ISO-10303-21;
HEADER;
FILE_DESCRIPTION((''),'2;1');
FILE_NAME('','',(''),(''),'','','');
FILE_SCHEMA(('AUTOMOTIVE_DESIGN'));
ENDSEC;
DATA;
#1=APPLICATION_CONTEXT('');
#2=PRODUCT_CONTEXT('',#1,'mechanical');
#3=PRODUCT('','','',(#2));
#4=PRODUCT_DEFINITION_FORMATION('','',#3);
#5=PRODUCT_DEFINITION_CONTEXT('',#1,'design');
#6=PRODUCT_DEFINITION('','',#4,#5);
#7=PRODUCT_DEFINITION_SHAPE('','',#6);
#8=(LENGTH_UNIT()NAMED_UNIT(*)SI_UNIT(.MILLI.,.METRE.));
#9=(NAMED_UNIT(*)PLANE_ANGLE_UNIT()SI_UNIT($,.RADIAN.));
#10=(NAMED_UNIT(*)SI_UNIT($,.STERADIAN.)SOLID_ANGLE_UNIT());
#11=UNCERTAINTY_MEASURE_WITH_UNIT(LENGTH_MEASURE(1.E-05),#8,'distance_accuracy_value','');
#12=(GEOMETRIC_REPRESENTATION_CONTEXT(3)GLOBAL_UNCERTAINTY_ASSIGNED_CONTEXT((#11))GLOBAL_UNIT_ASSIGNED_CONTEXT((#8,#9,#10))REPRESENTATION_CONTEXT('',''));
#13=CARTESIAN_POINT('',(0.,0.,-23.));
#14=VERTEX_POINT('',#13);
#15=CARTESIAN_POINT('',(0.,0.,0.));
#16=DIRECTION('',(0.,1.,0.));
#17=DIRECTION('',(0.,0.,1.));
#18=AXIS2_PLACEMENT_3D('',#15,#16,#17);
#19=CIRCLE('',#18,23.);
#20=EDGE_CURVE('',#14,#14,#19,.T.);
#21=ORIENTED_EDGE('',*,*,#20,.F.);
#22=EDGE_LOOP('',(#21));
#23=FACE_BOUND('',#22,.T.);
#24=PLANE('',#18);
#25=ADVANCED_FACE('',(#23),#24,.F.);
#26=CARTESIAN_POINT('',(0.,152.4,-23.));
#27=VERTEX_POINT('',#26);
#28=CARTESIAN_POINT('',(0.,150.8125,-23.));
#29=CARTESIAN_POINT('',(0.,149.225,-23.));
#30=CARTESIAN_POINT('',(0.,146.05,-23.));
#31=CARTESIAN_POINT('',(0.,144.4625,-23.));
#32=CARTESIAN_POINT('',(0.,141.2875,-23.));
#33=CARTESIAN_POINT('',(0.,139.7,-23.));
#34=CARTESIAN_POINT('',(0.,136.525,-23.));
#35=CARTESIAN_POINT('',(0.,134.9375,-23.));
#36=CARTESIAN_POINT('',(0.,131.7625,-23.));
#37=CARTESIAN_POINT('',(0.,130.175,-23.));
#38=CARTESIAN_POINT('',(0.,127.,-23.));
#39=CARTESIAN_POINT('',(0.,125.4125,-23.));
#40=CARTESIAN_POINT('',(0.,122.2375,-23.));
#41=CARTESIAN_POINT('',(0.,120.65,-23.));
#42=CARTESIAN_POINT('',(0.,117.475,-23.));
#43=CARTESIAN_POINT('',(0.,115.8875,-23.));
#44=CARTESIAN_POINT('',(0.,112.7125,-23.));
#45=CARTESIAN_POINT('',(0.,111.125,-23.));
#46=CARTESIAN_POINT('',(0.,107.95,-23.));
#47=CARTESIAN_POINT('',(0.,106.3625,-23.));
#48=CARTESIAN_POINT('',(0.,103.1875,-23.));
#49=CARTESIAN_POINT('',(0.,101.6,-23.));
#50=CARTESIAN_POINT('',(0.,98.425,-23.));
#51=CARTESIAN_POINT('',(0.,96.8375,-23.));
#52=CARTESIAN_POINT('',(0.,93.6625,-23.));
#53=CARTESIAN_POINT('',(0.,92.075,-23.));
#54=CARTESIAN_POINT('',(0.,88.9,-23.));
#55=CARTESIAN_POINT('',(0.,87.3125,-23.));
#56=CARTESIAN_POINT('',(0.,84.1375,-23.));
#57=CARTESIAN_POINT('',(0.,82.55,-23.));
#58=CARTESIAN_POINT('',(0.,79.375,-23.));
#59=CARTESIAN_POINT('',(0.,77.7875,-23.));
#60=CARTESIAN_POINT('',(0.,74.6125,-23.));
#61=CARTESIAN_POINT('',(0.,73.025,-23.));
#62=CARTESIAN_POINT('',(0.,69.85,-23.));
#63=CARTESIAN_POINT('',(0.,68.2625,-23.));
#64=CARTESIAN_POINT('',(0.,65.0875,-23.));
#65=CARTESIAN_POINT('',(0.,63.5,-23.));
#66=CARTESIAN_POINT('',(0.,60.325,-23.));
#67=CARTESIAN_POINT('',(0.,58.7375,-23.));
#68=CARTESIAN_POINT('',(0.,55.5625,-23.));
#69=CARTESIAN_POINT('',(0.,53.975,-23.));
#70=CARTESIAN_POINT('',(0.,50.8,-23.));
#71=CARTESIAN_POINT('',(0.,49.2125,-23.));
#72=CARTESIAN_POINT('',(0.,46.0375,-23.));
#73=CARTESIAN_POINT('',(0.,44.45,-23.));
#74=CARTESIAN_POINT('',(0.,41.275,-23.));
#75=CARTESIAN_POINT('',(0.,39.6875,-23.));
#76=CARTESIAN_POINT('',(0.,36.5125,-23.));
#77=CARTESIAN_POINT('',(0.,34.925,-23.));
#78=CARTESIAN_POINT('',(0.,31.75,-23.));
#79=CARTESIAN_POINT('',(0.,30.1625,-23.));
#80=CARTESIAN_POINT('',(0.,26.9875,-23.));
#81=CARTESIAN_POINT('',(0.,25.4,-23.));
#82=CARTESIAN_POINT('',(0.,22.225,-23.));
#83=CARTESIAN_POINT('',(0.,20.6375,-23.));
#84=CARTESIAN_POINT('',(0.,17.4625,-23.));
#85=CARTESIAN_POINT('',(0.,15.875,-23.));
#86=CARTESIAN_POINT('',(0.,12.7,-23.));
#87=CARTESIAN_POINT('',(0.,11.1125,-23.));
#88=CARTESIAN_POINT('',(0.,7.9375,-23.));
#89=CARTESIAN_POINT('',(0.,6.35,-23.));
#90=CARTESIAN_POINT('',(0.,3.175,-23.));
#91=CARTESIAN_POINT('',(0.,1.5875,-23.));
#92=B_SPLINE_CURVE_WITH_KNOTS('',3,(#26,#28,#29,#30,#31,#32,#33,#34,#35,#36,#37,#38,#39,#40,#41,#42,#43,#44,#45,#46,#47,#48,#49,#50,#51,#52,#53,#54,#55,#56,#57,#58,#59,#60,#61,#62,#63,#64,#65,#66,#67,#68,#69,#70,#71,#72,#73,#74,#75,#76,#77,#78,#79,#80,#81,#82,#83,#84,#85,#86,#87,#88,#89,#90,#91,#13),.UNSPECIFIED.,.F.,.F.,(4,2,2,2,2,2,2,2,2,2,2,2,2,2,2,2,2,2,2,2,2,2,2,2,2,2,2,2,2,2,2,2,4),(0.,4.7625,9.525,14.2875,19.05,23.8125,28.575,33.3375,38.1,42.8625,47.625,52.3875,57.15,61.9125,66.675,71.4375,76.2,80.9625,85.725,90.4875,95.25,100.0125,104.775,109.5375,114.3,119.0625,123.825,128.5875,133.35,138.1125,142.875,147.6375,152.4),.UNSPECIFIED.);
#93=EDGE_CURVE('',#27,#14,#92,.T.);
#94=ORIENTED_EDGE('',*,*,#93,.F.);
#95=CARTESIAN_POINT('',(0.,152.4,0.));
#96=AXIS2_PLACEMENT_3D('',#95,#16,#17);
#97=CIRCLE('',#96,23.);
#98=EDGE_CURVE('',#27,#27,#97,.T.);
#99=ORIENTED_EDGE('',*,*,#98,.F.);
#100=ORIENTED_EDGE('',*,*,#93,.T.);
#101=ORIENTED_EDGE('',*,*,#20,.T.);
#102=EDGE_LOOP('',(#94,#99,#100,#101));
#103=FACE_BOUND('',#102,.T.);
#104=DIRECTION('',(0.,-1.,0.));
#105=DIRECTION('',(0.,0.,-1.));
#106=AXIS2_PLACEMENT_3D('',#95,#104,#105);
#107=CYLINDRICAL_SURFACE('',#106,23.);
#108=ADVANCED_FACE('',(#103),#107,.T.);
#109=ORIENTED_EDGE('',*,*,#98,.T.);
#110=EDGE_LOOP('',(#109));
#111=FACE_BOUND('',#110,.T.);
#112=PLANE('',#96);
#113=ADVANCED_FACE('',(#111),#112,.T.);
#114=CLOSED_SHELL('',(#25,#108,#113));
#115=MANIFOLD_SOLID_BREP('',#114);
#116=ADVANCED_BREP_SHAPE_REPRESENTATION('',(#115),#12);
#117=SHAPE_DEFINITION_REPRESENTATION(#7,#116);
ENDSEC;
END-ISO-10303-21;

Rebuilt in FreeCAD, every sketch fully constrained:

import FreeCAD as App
import Part
import Sketcher

V = App.Vector

doc = App.newDocument("Part")
body = doc.addObject("PartDesign::Body", "Body")

# Sketch on XZ plane
sketch1 = doc.addObject("Sketcher::SketchObject", "Sketch")
body.addObject(sketch1)
sketch1.AttachmentSupport = (doc.XZ_Plane, [""])
sketch1.MapMode = "FlatFace"
sketch1.addGeometry(Part.Circle(V(0, 0, 0), V(0, 0, 1), 23), False)
sketch1.addConstraint(Sketcher.Constraint("Coincident", 0, 3, -1, 1))
sketch1.addConstraint(Sketcher.Constraint("Diameter", 0, 46.0))
pad1 = doc.addObject("PartDesign::Pad", "Pad")
body.addObject(pad1)
pad1.Profile = sketch1
pad1.Length = 152.4
pad1.Reversed = True

doc.recompute()
